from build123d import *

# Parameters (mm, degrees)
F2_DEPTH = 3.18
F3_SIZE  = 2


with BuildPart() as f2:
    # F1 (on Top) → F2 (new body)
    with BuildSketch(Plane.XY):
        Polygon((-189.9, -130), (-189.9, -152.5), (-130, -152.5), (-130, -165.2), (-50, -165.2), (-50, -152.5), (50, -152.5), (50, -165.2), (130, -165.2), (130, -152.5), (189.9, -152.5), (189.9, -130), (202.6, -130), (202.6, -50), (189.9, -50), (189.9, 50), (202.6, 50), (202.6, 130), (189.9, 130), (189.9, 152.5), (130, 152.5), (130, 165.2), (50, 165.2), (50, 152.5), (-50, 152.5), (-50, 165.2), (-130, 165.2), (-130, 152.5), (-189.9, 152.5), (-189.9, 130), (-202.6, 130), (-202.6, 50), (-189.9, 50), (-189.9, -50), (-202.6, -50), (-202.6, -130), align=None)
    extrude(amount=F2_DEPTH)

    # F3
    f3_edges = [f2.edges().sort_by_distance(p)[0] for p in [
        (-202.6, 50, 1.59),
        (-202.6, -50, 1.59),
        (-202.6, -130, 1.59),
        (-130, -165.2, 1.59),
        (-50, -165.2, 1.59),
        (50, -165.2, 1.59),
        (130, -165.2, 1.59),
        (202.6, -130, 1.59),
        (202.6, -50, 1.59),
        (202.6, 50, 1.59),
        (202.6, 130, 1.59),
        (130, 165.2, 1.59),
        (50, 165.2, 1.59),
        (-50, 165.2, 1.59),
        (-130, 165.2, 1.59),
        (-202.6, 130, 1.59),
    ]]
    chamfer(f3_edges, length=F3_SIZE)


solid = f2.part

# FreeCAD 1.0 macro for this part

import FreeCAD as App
import Part
import Sketcher


def edges_at(feature, points):
    """Names of the edges that pass closest to the given points."""
    edges = feature.Shape.Edges
    near = lambda p: min(range(len(edges)), key=lambda i: edges[i].distToShape(Part.Vertex(*p))[0])
    return sorted({f"Edge{near(p) + 1}" for p in points})

doc = App.newDocument("Part")
body = doc.addObject("PartDesign::Body", "Body")

# Sketch on XY plane
sketch1 = body.newObject("Sketcher::SketchObject", "Sketch")
sketch1.AttachmentSupport = (doc.getObject("XY_Plane"), [""])
sketch1.MapMode = "FlatFace"
sketch1.addGeometry(Part.LineSegment(App.Vector(-190, -130, 0), App.Vector(-190, -152, 0)), False)
sketch1.addGeometry(Part.LineSegment(App.Vector(-190, -152, 0), App.Vector(-130, -152, 0)), False)
sketch1.addGeometry(Part.LineSegment(App.Vector(-130, -152, 0), App.Vector(-130, -165, 0)), False)
sketch1.addGeometry(Part.LineSegment(App.Vector(-130, -165, 0), App.Vector(-50, -165, 0)), False)
sketch1.addGeometry(Part.LineSegment(App.Vector(-50, -165, 0), App.Vector(-50, -152, 0)), False)
sketch1.addGeometry(Part.LineSegment(App.Vector(-50, -152, 0), App.Vector(50, -152, 0)), False)
sketch1.addGeometry(Part.LineSegment(App.Vector(50, -152, 0), App.Vector(50, -165, 0)), False)
sketch1.addGeometry(Part.LineSegment(App.Vector(50, -165, 0), App.Vector(130, -165, 0)), False)
sketch1.addGeometry(Part.LineSegment(App.Vector(130, -165, 0), App.Vector(130, -152, 0)), False)
sketch1.addGeometry(Part.LineSegment(App.Vector(130, -152, 0), App.Vector(190, -152, 0)), False)
sketch1.addGeometry(Part.LineSegment(App.Vector(190, -152, 0), App.Vector(190, -130, 0)), False)
sketch1.addGeometry(Part.LineSegment(App.Vector(190, -130, 0), App.Vector(203, -130, 0)), False)
sketch1.addGeometry(Part.LineSegment(App.Vector(203, -130, 0), App.Vector(203, -50, 0)), False)
sketch1.addGeometry(Part.LineSegment(App.Vector(203, -50, 0), App.Vector(190, -50, 0)), False)
sketch1.addGeometry(Part.LineSegment(App.Vector(190, -50, 0), App.Vector(190, 50, 0)), False)
sketch1.addGeometry(Part.LineSegment(App.Vector(190, 50, 0), App.Vector(203, 50, 0)), False)
sketch1.addGeometry(Part.LineSegment(App.Vector(203, 50, 0), App.Vector(203, 130, 0)), False)
sketch1.addGeometry(Part.LineSegment(App.Vector(203, 130, 0), App.Vector(190, 130, 0)), False)
sketch1.addGeometry(Part.LineSegment(App.Vector(190, 130, 0), App.Vector(190, 152, 0)), False)
sketch1.addGeometry(Part.LineSegment(App.Vector(190, 152, 0), App.Vector(130, 152, 0)), False)
sketch1.addGeometry(Part.LineSegment(App.Vector(130, 152, 0), App.Vector(130, 165, 0)), False)
sketch1.addGeometry(Part.LineSegment(App.Vector(130, 165, 0), App.Vector(50, 165, 0)), False)
sketch1.addGeometry(Part.LineSegment(App.Vector(50, 165, 0), App.Vector(50, 152, 0)), False)
sketch1.addGeometry(Part.LineSegment(App.Vector(50, 152, 0), App.Vector(-50, 152, 0)), False)
sketch1.addGeometry(Part.LineSegment(App.Vector(-50, 152, 0), App.Vector(-50, 165, 0)), False)
sketch1.addGeometry(Part.LineSegment(App.Vector(-50, 165, 0), App.Vector(-130, 165, 0)), False)
sketch1.addGeometry(Part.LineSegment(App.Vector(-130, 165, 0), App.Vector(-130, 152, 0)), False)
sketch1.addGeometry(Part.LineSegment(App.Vector(-130, 152, 0), App.Vector(-190, 152, 0)), False)
sketch1.addGeometry(Part.LineSegment(App.Vector(-190, 152, 0), App.Vector(-190, 130, 0)), False)
sketch1.addGeometry(Part.LineSegment(App.Vector(-190, 130, 0), App.Vector(-203, 130, 0)), False)
sketch1.addGeometry(Part.LineSegment(App.Vector(-203, 130, 0), App.Vector(-203, 50, 0)), False)
sketch1.addGeometry(Part.LineSegment(App.Vector(-203, 50, 0), App.Vector(-190, 50, 0)), False)
sketch1.addGeometry(Part.LineSegment(App.Vector(-190, 50, 0), App.Vector(-190, -50, 0)), False)
sketch1.addGeometry(Part.LineSegment(App.Vector(-190, -50, 0), App.Vector(-203, -50, 0)), False)
sketch1.addGeometry(Part.LineSegment(App.Vector(-203, -50, 0), App.Vector(-203, -130, 0)), False)
sketch1.addGeometry(Part.LineSegment(App.Vector(-203, -130, 0), App.Vector(-190, -130, 0)), False)
sketch1.addConstraint(Sketcher.Constraint("Coincident", 0, 2, 1, 1))
sketch1.addConstraint(Sketcher.Constraint("Coincident", 1, 2, 2, 1))
sketch1.addConstraint(Sketcher.Constraint("Coincident", 2, 2, 3, 1))
sketch1.addConstraint(Sketcher.Constraint("Coincident", 3, 2, 4, 1))
sketch1.addConstraint(Sketcher.Constraint("Coincident", 4, 2, 5, 1))
sketch1.addConstraint(Sketcher.Constraint("Coincident", 5, 2, 6, 1))
sketch1.addConstraint(Sketcher.Constraint("Coincident", 6, 2, 7, 1))
sketch1.addConstraint(Sketcher.Constraint("Coincident", 7, 2, 8, 1))
sketch1.addConstraint(Sketcher.Constraint("Coincident", 8, 2, 9, 1))
sketch1.addConstraint(Sketcher.Constraint("Coincident", 9, 2, 10, 1))
sketch1.addConstraint(Sketcher.Constraint("Coincident", 10, 2, 11, 1))
sketch1.addConstraint(Sketcher.Constraint("Coincident", 11, 2, 12, 1))
sketch1.addConstraint(Sketcher.Constraint("Coincident", 12, 2, 13, 1))
sketch1.addConstraint(Sketcher.Constraint("Coincident", 13, 2, 14, 1))
sketch1.addConstraint(Sketcher.Constraint("Coincident", 14, 2, 15, 1))
sketch1.addConstraint(Sketcher.Constraint("Coincident", 15, 2, 16, 1))
sketch1.addConstraint(Sketcher.Constraint("Coincident", 16, 2, 17, 1))
sketch1.addConstraint(Sketcher.Constraint("Coincident", 17, 2, 18, 1))
sketch1.addConstraint(Sketcher.Constraint("Coincident", 18, 2, 19, 1))
sketch1.addConstraint(Sketcher.Constraint("Coincident", 19, 2, 20, 1))
sketch1.addConstraint(Sketcher.Constraint("Coincident", 20, 2, 21, 1))
sketch1.addConstraint(Sketcher.Constraint("Coincident", 21, 2, 22, 1))
sketch1.addConstraint(Sketcher.Constraint("Coincident", 22, 2, 23, 1))
sketch1.addConstraint(Sketcher.Constraint("Coincident", 23, 2, 24, 1))
sketch1.addConstraint(Sketcher.Constraint("Coincident", 24, 2, 25, 1))
sketch1.addConstraint(Sketcher.Constraint("Coincident", 25, 2, 26, 1))
sketch1.addConstraint(Sketcher.Constraint("Coincident", 26, 2, 27, 1))
sketch1.addConstraint(Sketcher.Constraint("Coincident", 27, 2, 28, 1))
sketch1.addConstraint(Sketcher.Constraint("Coincident", 28, 2, 29, 1))
sketch1.addConstraint(Sketcher.Constraint("Coincident", 29, 2, 30, 1))
sketch1.addConstraint(Sketcher.Constraint("Coincident", 30, 2, 31, 1))
sketch1.addConstraint(Sketcher.Constraint("Coincident", 31, 2, 32, 1))
sketch1.addConstraint(Sketcher.Constraint("Coincident", 32, 2, 33, 1))
sketch1.addConstraint(Sketcher.Constraint("Coincident", 33, 2, 34, 1))
sketch1.addConstraint(Sketcher.Constraint("Coincident", 34, 2, 35, 1))
sketch1.addConstraint(Sketcher.Constraint("Coincident", 35, 2, 0, 1))
sketch1.addConstraint(Sketcher.Constraint("Vertical", 0))
sketch1.addConstraint(Sketcher.Constraint("Horizontal", 1))
sketch1.addConstraint(Sketcher.Constraint("Vertical", 2))
sketch1.addConstraint(Sketcher.Constraint("Horizontal", 3))
sketch1.addConstraint(Sketcher.Constraint("Vertical", 4))
sketch1.addConstraint(Sketcher.Constraint("Horizontal", 5))
sketch1.addConstraint(Sketcher.Constraint("Vertical", 6))
sketch1.addConstraint(Sketcher.Constraint("Horizontal", 7))
sketch1.addConstraint(Sketcher.Constraint("Vertical", 8))
sketch1.addConstraint(Sketcher.Constraint("Horizontal", 9))
sketch1.addConstraint(Sketcher.Constraint("Vertical", 10))
sketch1.addConstraint(Sketcher.Constraint("Horizontal", 11))
sketch1.addConstraint(Sketcher.Constraint("Vertical", 12))
sketch1.addConstraint(Sketcher.Constraint("Horizontal", 13))
sketch1.addConstraint(Sketcher.Constraint("Vertical", 14))
sketch1.addConstraint(Sketcher.Constraint("Horizontal", 15))
sketch1.addConstraint(Sketcher.Constraint("Vertical", 16))
sketch1.addConstraint(Sketcher.Constraint("Horizontal", 17))
sketch1.addConstraint(Sketcher.Constraint("Vertical", 18))
sketch1.addConstraint(Sketcher.Constraint("Horizontal", 19))
sketch1.addConstraint(Sketcher.Constraint("Vertical", 20))
sketch1.addConstraint(Sketcher.Constraint("Horizontal", 21))
sketch1.addConstraint(Sketcher.Constraint("Vertical", 22))
sketch1.addConstraint(Sketcher.Constraint("Horizontal", 23))
sketch1.addConstraint(Sketcher.Constraint("Vertical", 24))
sketch1.addConstraint(Sketcher.Constraint("Horizontal", 25))
sketch1.addConstraint(Sketcher.Constraint("Vertical", 26))
sketch1.addConstraint(Sketcher.Constraint("Horizontal", 27))
sketch1.addConstraint(Sketcher.Constraint("Vertical", 28))
sketch1.addConstraint(Sketcher.Constraint("Horizontal", 29))
sketch1.addConstraint(Sketcher.Constraint("Vertical", 30))
sketch1.addConstraint(Sketcher.Constraint("Horizontal", 31))
sketch1.addConstraint(Sketcher.Constraint("Vertical", 32))
sketch1.addConstraint(Sketcher.Constraint("Horizontal", 33))
sketch1.addConstraint(Sketcher.Constraint("Vertical", 34))
sketch1.addConstraint(Sketcher.Constraint("Horizontal", 35))
sketch1.addConstraint(Sketcher.Constraint("Symmetric", 0, 2, 18, 2, -1, 1))
sketch1.addConstraint(Sketcher.Constraint("Symmetric", 2, 2, 20, 2, -1, 1))
sketch1.addConstraint(Sketcher.Constraint("Symmetric", 4, 2, 22, 2, -1, 1))
sketch1.addConstraint(Sketcher.Constraint("Symmetric", 6, 2, 24, 2, -1, 1))
sketch1.addConstraint(Sketcher.Constraint("Symmetric", 8, 2, 26, 2, -1, 1))
sketch1.addConstraint(Sketcher.Constraint("Symmetric", 10, 2, 28, 2, -1, 1))
sketch1.addConstraint(Sketcher.Constraint("Symmetric", 12, 2, 30, 2, -1, 1))
sketch1.addConstraint(Sketcher.Constraint("Symmetric", 14, 2, 32, 2, -1, 1))
sketch1.addConstraint(Sketcher.Constraint("Symmetric", 16, 2, 34, 2, -1, 1))
sketch1.addConstraint(Sketcher.Constraint("Symmetric", 3, 2, 6, 2, -2))
sketch1.addConstraint(Sketcher.Constraint("Symmetric", 1, 2, 8, 2, -2))
sketch1.addConstraint(Sketcher.Constraint("Symmetric", 17, 2, 28, 2, -2))
sketch1.addConstraint(Sketcher.Constraint("Symmetric", 15, 2, 30, 2, -2))
sketch1.addConstraint(Sketcher.Constraint("Horizontal", 1, 2, 4, 2))
sketch1.addConstraint(Sketcher.Constraint("Vertical", 10, 2, 13, 2))
sketch1.addConstraint(Sketcher.Constraint("Equal", 35, 2))
sketch1.addConstraint(Sketcher.Constraint("Equal", 25, 12))
sketch1.addConstraint(Sketcher.Constraint("Equal", 23, 14))
sketch1.addConstraint(Sketcher.Constraint("DistanceX", 3, 1, 3, 2, 80.0))
sketch1.addConstraint(Sketcher.Constraint("DistanceX", 5, 1, 5, 2, 100.0))
sketch1.addConstraint(Sketcher.Constraint("DistanceX", 1, 1, 1, 2, 59.9))
sketch1.addConstraint(Sketcher.Constraint("DistanceX", 11, 1, 11, 2, 12.7))
sketch1.addConstraint(Sketcher.Constraint("DistanceY", 0, 2, 0, 1, 22.5))
pad1 = body.newObject("PartDesign::Pad", "Pad")
pad1.Profile = sketch1
pad1.Length = 3.18
doc.recompute()

chamfer = body.newObject("PartDesign::Chamfer", "Chamfer")
chamfer.Base = (pad1, edges_at(pad1, [
    (-202.6, 50, 1.59),
    (-202.6, -50, 1.59),
    (-202.6, -130, 1.59),
    (-130, -165.2, 1.59),
    (-50, -165.2, 1.59),
    (50, -165.2, 1.59),
    (130, -165.2, 1.59),
    (202.6, -130, 1.59),
    (202.6, -50, 1.59),
    (202.6, 50, 1.59),
    (202.6, 130, 1.59),
    (130, 165.2, 1.59),
    (50, 165.2, 1.59),
    (-50, 165.2, 1.59),
    (-130, 165.2, 1.59),
    (-202.6, 130, 1.59),
]))
chamfer.Size = 2

doc.recompute()
